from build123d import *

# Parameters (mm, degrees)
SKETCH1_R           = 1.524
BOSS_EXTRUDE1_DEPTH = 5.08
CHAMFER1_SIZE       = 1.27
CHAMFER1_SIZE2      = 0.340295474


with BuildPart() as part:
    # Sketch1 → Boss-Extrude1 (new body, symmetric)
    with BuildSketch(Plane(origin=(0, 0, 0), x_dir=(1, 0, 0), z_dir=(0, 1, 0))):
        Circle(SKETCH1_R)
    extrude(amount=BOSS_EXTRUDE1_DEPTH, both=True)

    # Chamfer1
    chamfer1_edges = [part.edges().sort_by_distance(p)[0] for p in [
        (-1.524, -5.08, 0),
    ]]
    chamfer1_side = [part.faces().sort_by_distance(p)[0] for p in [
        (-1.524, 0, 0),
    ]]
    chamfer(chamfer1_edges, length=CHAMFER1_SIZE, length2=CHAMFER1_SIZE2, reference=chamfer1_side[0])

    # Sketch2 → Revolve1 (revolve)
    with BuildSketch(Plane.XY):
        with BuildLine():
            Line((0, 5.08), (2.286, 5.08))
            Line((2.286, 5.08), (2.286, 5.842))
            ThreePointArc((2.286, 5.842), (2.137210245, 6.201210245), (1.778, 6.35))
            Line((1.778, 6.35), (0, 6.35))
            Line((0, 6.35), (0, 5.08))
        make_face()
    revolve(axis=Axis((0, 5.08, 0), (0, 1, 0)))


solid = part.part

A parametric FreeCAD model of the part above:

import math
import FreeCAD as App
import Part
import Sketcher
from FreeCAD import Vector
Q = App.Units.Quantity


def edges_at(feature, points):
    """Names of the edges that pass closest to the given points."""
    edges = feature.Shape.Edges
    near = lambda p: min(range(len(edges)), key=lambda i: edges[i].distToShape(Part.Vertex(*p))[0])
    return sorted({f"Edge{near(p) + 1}" for p in points})

doc = App.newDocument("Part")
params = doc.addObject("Spreadsheet::Sheet", "Params")
for row, (alias, value) in enumerate([
    ("sketch1_diameter", "0.12 in"),
    ("pad1_length", "0.4 in"),
    ("chamfer_size", "0.05 in"),
    ("chamfer_size2", "0.340295 mm"),
    ("sketch2_radius", "0.02 in"),
    ("sketch2_width", "0.09 in"),
    ("sketch2_height", "0.03 in"),
    ("revolution_angle", "360 deg"),
], start=1):
    params.set(f"A{row}", alias)
    params.set(f"B{row}", "=" + value)
    params.setAlias(f"B{row}", alias)

body = doc.addObject("PartDesign::Body", "Body")

# Sketch on XZ plane
sketch1 = body.newObject("Sketcher::SketchObject", "Sketch")
sketch1.AttachmentSupport = (doc.getObject("XZ_Plane"), [""])
sketch1.MapMode = "FlatFace"
sketch1.addGeometry(Part.Circle(Vector(0, 0, 0), Vector(0, 0, 1), 1.5), False)
sketch1.addConstraint([
    Sketcher.Constraint("Coincident", 0, 3, -1, 1),
    Sketcher.Constraint("Diameter", 0, Q("0.12 in")),
])
sketch1.setExpression("Constraints[1]", "Params.sketch1_diameter")
pad1 = body.newObject("PartDesign::Pad", "Pad")
pad1.Profile = sketch1
pad1.setExpression("Length", "Params.pad1_length")
pad1.Midplane = True
doc.recompute()

chamfer = body.newObject("PartDesign::Chamfer", "Chamfer")
chamfer.Base = (pad1, edges_at(pad1, [(-1.524, -5.08, 0)]))
chamfer.ChamferType = "Two distances"
chamfer.setExpression("Size", "Params.chamfer_size")
chamfer.setExpression("Size2", "Params.chamfer_size2")

# Sketch on XY plane
sketch2 = body.newObject("Sketcher::SketchObject", "Sketch001")
sketch2.AttachmentSupport = (doc.getObject("XY_Plane"), [""])
sketch2.MapMode = "FlatFace"
sketch2.addGeometry([
    Part.LineSegment(Vector(0, 5.1, 0), Vector(2.3, 5.1, 0)),  # 0
    Part.LineSegment(Vector(2.3, 5.1, 0), Vector(2.3, 5.8, 0)),  # 1
    Part.ArcOfCircle(Part.Circle(Vector(1.8, 5.8, 0), Vector(0, 0, 1), 0.5), math.radians(0), math.radians(90)),  # 2
    Part.LineSegment(Vector(1.8, 6.3, 0), Vector(0, 6.3, 0)),  # 3
    Part.LineSegment(Vector(0, 6.3, 0), Vector(0, 5.1, 0)),  # 4
], False)
sketch2.addConstraint([
    Sketcher.Constraint("Coincident", 0, 2, 1, 1),
    Sketcher.Constraint("Tangent", 1, 2, 2, 1),
    Sketcher.Constraint("Tangent", 2, 2, 3, 1),
    Sketcher.Constraint("Coincident", 3, 2, 4, 1),
    Sketcher.Constraint("Coincident", 4, 2, 0, 1),
    Sketcher.Constraint("Horizontal", 0),
    Sketcher.Constraint("Vertical", 1),
    Sketcher.Constraint("Horizontal", 3),
    Sketcher.Constraint("Vertical", 4),
    Sketcher.Constraint("PointOnObject", 3, 2, -2),
    Sketcher.Constraint("Radius", 2, Q("0.02 in")),
    Sketcher.Constraint("DistanceX", 0, 1, 0, 2, Q("0.09 in")),
    Sketcher.Constraint("DistanceY", 1, 1, 1, 2, Q("0.03 in")),
    Sketcher.Constraint("DistanceY", -1, 1, 0, 2, Q("0.2 in")),
])
sketch2.setExpression("Constraints[10]", "Params.sketch2_radius")
sketch2.setExpression("Constraints[11]", "Params.sketch2_width")
sketch2.setExpression("Constraints[12]", "Params.sketch2_height")
revolution = body.newObject("PartDesign::Revolution", "Revolution")
revolution.Profile = sketch2
revolution.ReferenceAxis = (sketch2, ["V_Axis"])
revolution.setExpression("Angle", "Params.revolution_angle")

doc.recompute()
